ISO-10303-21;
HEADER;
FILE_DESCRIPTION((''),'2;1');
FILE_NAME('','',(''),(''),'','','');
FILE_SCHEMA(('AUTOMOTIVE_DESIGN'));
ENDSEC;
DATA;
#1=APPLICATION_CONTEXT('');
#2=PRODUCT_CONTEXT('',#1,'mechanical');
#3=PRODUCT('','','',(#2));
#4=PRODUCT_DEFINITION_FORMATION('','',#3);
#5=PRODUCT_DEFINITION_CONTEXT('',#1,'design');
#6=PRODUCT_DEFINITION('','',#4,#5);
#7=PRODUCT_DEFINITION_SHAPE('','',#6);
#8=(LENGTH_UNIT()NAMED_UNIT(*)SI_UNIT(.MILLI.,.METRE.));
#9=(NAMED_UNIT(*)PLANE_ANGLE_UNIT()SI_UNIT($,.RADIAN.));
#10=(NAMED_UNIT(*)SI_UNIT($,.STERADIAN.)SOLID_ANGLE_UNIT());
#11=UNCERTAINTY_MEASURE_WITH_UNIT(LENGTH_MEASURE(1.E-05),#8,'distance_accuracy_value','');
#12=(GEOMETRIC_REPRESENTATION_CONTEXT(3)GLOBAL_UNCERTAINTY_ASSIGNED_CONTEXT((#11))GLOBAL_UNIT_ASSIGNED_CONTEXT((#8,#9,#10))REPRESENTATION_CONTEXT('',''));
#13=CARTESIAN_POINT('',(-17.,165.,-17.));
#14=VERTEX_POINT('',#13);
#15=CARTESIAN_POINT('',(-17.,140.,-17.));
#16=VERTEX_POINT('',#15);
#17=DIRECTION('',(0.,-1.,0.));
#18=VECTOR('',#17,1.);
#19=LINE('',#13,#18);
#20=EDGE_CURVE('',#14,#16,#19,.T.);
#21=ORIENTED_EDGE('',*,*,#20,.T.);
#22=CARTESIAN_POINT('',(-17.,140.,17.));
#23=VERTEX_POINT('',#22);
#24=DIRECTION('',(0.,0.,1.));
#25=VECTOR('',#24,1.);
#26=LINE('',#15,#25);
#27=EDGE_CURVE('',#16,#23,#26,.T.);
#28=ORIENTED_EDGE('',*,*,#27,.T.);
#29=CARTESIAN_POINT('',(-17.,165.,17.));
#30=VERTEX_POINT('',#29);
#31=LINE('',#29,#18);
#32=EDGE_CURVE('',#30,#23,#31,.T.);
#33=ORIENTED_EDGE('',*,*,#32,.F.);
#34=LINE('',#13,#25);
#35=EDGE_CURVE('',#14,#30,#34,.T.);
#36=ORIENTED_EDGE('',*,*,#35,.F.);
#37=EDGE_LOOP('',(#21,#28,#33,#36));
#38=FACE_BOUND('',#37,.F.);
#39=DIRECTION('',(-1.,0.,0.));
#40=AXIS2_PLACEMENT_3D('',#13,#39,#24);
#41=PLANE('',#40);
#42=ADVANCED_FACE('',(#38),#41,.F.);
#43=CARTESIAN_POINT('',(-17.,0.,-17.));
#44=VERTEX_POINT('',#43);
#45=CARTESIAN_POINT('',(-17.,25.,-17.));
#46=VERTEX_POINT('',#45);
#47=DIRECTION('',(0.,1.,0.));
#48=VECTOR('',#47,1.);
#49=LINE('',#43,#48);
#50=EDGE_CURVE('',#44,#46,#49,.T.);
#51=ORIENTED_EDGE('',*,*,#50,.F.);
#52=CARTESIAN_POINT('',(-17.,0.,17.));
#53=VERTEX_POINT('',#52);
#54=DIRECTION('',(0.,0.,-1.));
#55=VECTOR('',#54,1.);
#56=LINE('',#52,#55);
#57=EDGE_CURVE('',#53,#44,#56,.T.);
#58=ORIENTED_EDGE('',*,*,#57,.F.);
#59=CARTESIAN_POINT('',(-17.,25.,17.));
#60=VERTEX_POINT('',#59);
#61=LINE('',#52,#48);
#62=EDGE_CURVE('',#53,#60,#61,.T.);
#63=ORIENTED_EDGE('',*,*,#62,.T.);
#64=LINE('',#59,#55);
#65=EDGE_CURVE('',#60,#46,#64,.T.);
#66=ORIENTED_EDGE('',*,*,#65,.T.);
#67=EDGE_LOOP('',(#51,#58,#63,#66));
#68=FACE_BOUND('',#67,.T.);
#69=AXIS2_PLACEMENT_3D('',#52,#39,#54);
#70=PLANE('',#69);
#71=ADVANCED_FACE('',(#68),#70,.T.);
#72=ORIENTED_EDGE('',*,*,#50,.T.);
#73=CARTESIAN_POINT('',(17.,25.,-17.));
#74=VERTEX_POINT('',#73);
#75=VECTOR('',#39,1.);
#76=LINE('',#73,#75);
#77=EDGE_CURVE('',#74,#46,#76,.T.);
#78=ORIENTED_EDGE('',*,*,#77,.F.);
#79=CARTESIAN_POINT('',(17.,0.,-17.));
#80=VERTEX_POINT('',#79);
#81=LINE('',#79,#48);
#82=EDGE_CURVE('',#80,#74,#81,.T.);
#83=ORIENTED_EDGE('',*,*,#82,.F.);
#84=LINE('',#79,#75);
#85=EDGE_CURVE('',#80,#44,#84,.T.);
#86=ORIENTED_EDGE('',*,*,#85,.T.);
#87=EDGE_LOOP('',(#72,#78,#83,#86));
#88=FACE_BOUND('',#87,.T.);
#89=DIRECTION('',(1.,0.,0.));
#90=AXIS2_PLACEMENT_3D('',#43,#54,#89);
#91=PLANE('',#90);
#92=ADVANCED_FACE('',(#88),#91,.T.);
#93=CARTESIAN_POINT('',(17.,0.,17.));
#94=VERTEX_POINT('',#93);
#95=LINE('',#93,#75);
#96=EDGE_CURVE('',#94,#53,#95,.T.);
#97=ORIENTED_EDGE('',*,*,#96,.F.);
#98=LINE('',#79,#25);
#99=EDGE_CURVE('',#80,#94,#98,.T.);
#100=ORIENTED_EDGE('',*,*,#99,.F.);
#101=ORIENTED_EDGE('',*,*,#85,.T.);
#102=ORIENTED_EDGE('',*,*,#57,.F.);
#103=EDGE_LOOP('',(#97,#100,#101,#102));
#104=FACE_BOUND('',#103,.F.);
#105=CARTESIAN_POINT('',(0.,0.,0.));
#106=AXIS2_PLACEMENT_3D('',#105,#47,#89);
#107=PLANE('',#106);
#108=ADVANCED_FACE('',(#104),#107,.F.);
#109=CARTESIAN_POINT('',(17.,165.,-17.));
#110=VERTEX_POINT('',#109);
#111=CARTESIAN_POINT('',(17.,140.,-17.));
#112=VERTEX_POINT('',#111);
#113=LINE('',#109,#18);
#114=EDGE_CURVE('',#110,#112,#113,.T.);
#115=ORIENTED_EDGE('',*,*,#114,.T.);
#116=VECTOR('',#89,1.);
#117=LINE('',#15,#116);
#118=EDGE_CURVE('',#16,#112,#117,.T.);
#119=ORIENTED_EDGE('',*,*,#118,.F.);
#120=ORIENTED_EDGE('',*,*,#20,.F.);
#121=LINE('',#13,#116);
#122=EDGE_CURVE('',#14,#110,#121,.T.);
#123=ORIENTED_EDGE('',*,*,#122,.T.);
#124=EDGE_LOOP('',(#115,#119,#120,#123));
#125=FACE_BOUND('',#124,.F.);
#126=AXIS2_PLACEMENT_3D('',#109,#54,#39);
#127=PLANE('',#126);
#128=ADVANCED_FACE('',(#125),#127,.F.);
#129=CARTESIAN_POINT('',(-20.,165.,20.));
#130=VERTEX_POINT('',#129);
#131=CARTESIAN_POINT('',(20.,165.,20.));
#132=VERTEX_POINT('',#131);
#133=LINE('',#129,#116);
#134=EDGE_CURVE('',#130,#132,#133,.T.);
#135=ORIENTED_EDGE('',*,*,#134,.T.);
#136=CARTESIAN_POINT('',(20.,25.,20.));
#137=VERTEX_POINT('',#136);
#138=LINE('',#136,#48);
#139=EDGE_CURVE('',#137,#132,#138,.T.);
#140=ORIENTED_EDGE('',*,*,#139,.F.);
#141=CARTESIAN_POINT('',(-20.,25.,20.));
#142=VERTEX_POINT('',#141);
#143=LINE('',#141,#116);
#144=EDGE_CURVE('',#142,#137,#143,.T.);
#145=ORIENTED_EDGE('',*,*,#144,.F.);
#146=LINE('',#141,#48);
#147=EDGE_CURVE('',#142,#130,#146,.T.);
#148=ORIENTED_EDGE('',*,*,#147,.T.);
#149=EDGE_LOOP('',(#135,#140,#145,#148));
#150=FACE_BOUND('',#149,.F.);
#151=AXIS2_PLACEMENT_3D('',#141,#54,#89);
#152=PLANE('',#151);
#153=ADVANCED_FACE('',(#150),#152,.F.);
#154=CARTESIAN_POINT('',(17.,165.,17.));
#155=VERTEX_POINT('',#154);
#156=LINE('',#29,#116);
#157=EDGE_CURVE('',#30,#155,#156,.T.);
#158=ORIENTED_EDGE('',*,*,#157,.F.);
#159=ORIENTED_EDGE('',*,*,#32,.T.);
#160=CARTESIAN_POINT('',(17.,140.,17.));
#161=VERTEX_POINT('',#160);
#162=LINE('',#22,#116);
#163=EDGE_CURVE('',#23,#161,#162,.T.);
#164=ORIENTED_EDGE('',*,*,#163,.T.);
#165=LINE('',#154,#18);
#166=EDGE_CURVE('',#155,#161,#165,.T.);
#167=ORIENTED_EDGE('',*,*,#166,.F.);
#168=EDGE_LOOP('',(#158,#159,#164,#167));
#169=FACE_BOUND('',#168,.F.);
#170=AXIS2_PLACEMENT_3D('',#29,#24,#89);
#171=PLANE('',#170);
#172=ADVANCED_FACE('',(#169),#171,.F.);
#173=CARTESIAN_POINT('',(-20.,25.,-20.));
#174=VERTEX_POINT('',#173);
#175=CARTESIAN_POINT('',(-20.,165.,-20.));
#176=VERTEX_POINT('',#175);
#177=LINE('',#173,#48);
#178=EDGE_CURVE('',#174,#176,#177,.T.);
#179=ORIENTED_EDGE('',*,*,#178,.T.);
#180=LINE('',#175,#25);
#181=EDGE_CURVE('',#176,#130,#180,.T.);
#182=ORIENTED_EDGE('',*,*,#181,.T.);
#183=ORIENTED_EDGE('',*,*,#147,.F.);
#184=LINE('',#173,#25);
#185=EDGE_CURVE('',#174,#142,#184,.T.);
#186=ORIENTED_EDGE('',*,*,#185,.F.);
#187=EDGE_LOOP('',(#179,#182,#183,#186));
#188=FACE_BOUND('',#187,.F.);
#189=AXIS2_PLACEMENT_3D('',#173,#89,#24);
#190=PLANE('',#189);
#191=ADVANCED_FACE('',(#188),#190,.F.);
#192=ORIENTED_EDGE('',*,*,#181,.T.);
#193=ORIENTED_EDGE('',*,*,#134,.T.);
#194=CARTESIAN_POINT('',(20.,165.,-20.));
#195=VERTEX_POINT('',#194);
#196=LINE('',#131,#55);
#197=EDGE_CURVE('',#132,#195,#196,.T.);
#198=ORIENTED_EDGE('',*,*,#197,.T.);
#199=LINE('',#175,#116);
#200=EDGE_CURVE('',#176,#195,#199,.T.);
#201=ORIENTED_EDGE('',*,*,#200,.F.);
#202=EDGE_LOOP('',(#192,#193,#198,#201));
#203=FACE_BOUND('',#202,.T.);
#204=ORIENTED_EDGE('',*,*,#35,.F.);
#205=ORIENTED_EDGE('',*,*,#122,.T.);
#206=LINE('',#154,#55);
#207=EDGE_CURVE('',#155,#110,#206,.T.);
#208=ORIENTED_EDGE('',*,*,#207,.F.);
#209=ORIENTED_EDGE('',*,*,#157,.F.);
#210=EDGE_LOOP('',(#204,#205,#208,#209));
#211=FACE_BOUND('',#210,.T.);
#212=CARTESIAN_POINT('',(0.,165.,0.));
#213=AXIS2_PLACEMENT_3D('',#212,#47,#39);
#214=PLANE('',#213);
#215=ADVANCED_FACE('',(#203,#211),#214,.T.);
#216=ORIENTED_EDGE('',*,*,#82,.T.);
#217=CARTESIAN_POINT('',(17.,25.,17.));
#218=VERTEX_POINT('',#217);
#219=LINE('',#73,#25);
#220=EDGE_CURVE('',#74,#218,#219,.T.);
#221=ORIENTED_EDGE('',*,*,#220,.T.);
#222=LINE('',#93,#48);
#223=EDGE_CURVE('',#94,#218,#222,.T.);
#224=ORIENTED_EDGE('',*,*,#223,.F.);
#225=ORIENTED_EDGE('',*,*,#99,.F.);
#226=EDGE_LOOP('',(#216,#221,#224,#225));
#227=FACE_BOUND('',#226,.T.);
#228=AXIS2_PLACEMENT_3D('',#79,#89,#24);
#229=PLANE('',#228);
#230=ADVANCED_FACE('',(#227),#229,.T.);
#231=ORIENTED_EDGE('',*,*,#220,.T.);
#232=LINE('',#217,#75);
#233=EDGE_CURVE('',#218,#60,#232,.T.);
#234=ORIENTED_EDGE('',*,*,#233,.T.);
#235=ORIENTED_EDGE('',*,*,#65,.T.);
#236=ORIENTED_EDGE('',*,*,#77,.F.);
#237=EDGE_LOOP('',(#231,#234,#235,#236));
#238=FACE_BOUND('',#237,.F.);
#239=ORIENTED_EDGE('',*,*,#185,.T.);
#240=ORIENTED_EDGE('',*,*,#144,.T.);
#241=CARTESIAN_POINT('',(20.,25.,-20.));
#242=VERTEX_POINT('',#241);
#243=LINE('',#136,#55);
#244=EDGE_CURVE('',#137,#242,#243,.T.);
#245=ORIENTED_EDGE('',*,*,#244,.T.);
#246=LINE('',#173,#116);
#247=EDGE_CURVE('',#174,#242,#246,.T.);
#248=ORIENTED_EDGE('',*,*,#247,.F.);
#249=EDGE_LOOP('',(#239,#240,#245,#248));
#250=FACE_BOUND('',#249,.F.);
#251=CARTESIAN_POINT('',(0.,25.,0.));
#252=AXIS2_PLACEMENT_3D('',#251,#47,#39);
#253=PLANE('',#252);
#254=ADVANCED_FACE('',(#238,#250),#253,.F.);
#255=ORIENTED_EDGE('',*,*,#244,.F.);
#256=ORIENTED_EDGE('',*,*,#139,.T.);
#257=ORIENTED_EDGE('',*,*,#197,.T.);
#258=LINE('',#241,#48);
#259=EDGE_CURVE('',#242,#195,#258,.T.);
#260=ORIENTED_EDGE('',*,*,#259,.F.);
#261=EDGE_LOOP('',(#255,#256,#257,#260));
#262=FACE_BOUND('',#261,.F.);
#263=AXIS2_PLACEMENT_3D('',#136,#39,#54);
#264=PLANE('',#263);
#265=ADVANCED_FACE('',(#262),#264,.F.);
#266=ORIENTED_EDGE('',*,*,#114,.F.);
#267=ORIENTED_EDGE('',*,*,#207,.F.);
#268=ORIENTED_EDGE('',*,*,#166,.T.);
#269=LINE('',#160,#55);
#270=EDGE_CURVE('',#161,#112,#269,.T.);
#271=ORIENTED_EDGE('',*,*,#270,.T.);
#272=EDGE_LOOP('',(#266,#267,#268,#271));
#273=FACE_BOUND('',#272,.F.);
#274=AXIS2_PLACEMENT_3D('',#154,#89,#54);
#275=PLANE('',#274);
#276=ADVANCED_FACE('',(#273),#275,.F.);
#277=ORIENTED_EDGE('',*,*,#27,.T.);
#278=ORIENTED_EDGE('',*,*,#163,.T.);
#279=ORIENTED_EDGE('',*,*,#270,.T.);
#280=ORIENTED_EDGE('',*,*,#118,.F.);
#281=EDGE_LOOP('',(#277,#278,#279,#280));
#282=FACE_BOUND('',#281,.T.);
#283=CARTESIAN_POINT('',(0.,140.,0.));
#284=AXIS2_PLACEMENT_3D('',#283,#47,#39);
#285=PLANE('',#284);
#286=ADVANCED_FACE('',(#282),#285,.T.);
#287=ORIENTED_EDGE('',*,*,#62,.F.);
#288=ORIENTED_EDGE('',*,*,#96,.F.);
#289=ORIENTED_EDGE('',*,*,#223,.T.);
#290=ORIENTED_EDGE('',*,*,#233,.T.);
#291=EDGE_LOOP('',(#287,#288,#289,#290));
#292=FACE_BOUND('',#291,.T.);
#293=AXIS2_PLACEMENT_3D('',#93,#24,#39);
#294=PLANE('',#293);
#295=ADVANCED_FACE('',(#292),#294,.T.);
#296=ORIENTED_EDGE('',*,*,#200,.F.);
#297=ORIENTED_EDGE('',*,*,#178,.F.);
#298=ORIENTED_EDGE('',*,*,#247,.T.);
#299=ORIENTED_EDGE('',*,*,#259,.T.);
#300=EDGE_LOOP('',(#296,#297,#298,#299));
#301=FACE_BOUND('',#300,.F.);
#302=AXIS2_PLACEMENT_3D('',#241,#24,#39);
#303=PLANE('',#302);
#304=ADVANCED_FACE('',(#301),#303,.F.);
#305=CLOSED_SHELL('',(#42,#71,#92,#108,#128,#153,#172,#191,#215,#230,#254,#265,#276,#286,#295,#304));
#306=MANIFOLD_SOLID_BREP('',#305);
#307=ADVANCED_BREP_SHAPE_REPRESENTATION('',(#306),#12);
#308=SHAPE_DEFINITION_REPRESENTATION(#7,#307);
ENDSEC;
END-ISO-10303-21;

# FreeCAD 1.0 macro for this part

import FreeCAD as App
import Part
import Sketcher
Q = App.Units.Quantity

doc = App.newDocument("Part")
body = doc.addObject("PartDesign::Body", "Body")

sketch1 = body.newObject("Sketcher::SketchObject", "Sketch")
sketch1.AttachmentSupport = (doc.getObject("XZ_Plane"), [""])
sketch1.MapMode = "FlatFace"
sketch1.addGeometry(Part.LineSegment(App.Vector(17, -17, 0), App.Vector(-17, -17, 0)), False)
sketch1.addGeometry(Part.LineSegment(App.Vector(-17, -17, 0), App.Vector(-17, 17, 0)), False)
sketch1.addGeometry(Part.LineSegment(App.Vector(-17, 17, 0), App.Vector(17, 17, 0)), False)
sketch1.addGeometry(Part.LineSegment(App.Vector(17, 17, 0), App.Vector(17, -17, 0)), False)
sketch1.addConstraint(Sketcher.Constraint("Coincident", 0, 2, 1, 1))
sketch1.addConstraint(Sketcher.Constraint("Coincident", 1, 2, 2, 1))
sketch1.addConstraint(Sketcher.Constraint("Coincident", 2, 2, 3, 1))
sketch1.addConstraint(Sketcher.Constraint("Coincident", 3, 2, 0, 1))
sketch1.addConstraint(Sketcher.Constraint("Horizontal", 0))
sketch1.addConstraint(Sketcher.Constraint("Vertical", 1))
sketch1.addConstraint(Sketcher.Constraint("Horizontal", 2))
sketch1.addConstraint(Sketcher.Constraint("Vertical", 3))
sketch1.addConstraint(Sketcher.Constraint("Symmetric", 0, 2, 2, 2, -1, 1))
sketch1.addConstraint(Sketcher.Constraint("Equal", 2, 1))
sketch1.addConstraint(Sketcher.Constraint("DistanceX", 0, 2, 0, 1, Q("34 mm")))
pad1 = body.newObject("PartDesign::Pad", "Pad")
pad1.Profile = sketch1
pad1.Length = 25
pad1.Reversed = True

sketch2 = body.newObject("Sketcher::SketchObject", "Sketch001")
sketch2.AttachmentSupport = (doc.getObject("XZ_Plane"), [""])
sketch2.MapMode = "FlatFace"
sketch2.AttachmentOffset = App.Placement(App.Vector(0, 0, -25), App.Rotation())
sketch2.addGeometry(Part.LineSegment(App.Vector(20, -20, 0), App.Vector(-20, -20, 0)), False)
sketch2.addGeometry(Part.LineSegment(App.Vector(-20, -20, 0), App.Vector(-20, 20, 0)), False)
sketch2.addGeometry(Part.LineSegment(App.Vector(-20, 20, 0), App.Vector(20, 20, 0)), False)
sketch2.addGeometry(Part.LineSegment(App.Vector(20, 20, 0), App.Vector(20, -20, 0)), False)
sketch2.addConstraint(Sketcher.Constraint("Coincident", 0, 2, 1, 1))
sketch2.addConstraint(Sketcher.Constraint("Coincident", 1, 2, 2, 1))
sketch2.addConstraint(Sketcher.Constraint("Coincident", 2, 2, 3, 1))
sketch2.addConstraint(Sketcher.Constraint("Coincident", 3, 2, 0, 1))
sketch2.addConstraint(Sketcher.Constraint("Horizontal", 0))
sketch2.addConstraint(Sketcher.Constraint("Vertical", 1))
sketch2.addConstraint(Sketcher.Constraint("Horizontal", 2))
sketch2.addConstraint(Sketcher.Constraint("Vertical", 3))
sketch2.addConstraint(Sketcher.Constraint("Symmetric", 0, 2, 2, 2, -1, 1))
sketch2.addConstraint(Sketcher.Constraint("Equal", 2, 1))
sketch2.addConstraint(Sketcher.Constraint("DistanceX", 0, 2, 0, 1, Q("40 mm")))
pad2 = body.newObject("PartDesign::Pad", "Pad001")
pad2.Profile = sketch2
pad2.Length = 140
pad2.Reversed = True

sketch3 = body.newObject("Sketcher::SketchObject", "Sketch002")
sketch3.AttachmentSupport = (doc.getObject("XZ_Plane"), [""])
sketch3.MapMode = "FlatFace"
sketch3.AttachmentOffset = App.Placement(App.Vector(0, 0, -165), App.Rotation())
sketch3.addGeometry(Part.LineSegment(App.Vector(17, -17, 0), App.Vector(-17, -17, 0)), False)
sketch3.addGeometry(Part.LineSegment(App.Vector(-17, -17, 0), App.Vector(-17, 17, 0)), False)
sketch3.addGeometry(Part.LineSegment(App.Vector(-17, 17, 0), App.Vector(17, 17, 0)), False)
sketch3.addGeometry(Part.LineSegment(App.Vector(17, 17, 0), App.Vector(17, -17, 0)), False)
sketch3.addConstraint(Sketcher.Constraint("Coincident", 0, 2, 1, 1))
sketch3.addConstraint(Sketcher.Constraint("Coincident", 1, 2, 2, 1))
sketch3.addConstraint(Sketcher.Constraint("Coincident", 2, 2, 3, 1))
sketch3.addConstraint(Sketcher.Constraint("Coincident", 3, 2, 0, 1))
sketch3.addConstraint(Sketcher.Constraint("Horizontal", 0))
sketch3.addConstraint(Sketcher.Constraint("Vertical", 1))
sketch3.addConstraint(Sketcher.Constraint("Horizontal", 2))
sketch3.addConstraint(Sketcher.Constraint("Vertical", 3))
sketch3.addConstraint(Sketcher.Constraint("Symmetric", 0, 2, 2, 2, -1, 1))
sketch3.addConstraint(Sketcher.Constraint("Equal", 2, 1))
sketch3.addConstraint(Sketcher.Constraint("DistanceX", 0, 2, 0, 1, Q("34 mm")))
pocket1 = body.newObject("PartDesign::Pocket", "Pocket")
pocket1.Profile = sketch3
pocket1.Length = 25
pocket1.Reversed = True

doc.recompute()
